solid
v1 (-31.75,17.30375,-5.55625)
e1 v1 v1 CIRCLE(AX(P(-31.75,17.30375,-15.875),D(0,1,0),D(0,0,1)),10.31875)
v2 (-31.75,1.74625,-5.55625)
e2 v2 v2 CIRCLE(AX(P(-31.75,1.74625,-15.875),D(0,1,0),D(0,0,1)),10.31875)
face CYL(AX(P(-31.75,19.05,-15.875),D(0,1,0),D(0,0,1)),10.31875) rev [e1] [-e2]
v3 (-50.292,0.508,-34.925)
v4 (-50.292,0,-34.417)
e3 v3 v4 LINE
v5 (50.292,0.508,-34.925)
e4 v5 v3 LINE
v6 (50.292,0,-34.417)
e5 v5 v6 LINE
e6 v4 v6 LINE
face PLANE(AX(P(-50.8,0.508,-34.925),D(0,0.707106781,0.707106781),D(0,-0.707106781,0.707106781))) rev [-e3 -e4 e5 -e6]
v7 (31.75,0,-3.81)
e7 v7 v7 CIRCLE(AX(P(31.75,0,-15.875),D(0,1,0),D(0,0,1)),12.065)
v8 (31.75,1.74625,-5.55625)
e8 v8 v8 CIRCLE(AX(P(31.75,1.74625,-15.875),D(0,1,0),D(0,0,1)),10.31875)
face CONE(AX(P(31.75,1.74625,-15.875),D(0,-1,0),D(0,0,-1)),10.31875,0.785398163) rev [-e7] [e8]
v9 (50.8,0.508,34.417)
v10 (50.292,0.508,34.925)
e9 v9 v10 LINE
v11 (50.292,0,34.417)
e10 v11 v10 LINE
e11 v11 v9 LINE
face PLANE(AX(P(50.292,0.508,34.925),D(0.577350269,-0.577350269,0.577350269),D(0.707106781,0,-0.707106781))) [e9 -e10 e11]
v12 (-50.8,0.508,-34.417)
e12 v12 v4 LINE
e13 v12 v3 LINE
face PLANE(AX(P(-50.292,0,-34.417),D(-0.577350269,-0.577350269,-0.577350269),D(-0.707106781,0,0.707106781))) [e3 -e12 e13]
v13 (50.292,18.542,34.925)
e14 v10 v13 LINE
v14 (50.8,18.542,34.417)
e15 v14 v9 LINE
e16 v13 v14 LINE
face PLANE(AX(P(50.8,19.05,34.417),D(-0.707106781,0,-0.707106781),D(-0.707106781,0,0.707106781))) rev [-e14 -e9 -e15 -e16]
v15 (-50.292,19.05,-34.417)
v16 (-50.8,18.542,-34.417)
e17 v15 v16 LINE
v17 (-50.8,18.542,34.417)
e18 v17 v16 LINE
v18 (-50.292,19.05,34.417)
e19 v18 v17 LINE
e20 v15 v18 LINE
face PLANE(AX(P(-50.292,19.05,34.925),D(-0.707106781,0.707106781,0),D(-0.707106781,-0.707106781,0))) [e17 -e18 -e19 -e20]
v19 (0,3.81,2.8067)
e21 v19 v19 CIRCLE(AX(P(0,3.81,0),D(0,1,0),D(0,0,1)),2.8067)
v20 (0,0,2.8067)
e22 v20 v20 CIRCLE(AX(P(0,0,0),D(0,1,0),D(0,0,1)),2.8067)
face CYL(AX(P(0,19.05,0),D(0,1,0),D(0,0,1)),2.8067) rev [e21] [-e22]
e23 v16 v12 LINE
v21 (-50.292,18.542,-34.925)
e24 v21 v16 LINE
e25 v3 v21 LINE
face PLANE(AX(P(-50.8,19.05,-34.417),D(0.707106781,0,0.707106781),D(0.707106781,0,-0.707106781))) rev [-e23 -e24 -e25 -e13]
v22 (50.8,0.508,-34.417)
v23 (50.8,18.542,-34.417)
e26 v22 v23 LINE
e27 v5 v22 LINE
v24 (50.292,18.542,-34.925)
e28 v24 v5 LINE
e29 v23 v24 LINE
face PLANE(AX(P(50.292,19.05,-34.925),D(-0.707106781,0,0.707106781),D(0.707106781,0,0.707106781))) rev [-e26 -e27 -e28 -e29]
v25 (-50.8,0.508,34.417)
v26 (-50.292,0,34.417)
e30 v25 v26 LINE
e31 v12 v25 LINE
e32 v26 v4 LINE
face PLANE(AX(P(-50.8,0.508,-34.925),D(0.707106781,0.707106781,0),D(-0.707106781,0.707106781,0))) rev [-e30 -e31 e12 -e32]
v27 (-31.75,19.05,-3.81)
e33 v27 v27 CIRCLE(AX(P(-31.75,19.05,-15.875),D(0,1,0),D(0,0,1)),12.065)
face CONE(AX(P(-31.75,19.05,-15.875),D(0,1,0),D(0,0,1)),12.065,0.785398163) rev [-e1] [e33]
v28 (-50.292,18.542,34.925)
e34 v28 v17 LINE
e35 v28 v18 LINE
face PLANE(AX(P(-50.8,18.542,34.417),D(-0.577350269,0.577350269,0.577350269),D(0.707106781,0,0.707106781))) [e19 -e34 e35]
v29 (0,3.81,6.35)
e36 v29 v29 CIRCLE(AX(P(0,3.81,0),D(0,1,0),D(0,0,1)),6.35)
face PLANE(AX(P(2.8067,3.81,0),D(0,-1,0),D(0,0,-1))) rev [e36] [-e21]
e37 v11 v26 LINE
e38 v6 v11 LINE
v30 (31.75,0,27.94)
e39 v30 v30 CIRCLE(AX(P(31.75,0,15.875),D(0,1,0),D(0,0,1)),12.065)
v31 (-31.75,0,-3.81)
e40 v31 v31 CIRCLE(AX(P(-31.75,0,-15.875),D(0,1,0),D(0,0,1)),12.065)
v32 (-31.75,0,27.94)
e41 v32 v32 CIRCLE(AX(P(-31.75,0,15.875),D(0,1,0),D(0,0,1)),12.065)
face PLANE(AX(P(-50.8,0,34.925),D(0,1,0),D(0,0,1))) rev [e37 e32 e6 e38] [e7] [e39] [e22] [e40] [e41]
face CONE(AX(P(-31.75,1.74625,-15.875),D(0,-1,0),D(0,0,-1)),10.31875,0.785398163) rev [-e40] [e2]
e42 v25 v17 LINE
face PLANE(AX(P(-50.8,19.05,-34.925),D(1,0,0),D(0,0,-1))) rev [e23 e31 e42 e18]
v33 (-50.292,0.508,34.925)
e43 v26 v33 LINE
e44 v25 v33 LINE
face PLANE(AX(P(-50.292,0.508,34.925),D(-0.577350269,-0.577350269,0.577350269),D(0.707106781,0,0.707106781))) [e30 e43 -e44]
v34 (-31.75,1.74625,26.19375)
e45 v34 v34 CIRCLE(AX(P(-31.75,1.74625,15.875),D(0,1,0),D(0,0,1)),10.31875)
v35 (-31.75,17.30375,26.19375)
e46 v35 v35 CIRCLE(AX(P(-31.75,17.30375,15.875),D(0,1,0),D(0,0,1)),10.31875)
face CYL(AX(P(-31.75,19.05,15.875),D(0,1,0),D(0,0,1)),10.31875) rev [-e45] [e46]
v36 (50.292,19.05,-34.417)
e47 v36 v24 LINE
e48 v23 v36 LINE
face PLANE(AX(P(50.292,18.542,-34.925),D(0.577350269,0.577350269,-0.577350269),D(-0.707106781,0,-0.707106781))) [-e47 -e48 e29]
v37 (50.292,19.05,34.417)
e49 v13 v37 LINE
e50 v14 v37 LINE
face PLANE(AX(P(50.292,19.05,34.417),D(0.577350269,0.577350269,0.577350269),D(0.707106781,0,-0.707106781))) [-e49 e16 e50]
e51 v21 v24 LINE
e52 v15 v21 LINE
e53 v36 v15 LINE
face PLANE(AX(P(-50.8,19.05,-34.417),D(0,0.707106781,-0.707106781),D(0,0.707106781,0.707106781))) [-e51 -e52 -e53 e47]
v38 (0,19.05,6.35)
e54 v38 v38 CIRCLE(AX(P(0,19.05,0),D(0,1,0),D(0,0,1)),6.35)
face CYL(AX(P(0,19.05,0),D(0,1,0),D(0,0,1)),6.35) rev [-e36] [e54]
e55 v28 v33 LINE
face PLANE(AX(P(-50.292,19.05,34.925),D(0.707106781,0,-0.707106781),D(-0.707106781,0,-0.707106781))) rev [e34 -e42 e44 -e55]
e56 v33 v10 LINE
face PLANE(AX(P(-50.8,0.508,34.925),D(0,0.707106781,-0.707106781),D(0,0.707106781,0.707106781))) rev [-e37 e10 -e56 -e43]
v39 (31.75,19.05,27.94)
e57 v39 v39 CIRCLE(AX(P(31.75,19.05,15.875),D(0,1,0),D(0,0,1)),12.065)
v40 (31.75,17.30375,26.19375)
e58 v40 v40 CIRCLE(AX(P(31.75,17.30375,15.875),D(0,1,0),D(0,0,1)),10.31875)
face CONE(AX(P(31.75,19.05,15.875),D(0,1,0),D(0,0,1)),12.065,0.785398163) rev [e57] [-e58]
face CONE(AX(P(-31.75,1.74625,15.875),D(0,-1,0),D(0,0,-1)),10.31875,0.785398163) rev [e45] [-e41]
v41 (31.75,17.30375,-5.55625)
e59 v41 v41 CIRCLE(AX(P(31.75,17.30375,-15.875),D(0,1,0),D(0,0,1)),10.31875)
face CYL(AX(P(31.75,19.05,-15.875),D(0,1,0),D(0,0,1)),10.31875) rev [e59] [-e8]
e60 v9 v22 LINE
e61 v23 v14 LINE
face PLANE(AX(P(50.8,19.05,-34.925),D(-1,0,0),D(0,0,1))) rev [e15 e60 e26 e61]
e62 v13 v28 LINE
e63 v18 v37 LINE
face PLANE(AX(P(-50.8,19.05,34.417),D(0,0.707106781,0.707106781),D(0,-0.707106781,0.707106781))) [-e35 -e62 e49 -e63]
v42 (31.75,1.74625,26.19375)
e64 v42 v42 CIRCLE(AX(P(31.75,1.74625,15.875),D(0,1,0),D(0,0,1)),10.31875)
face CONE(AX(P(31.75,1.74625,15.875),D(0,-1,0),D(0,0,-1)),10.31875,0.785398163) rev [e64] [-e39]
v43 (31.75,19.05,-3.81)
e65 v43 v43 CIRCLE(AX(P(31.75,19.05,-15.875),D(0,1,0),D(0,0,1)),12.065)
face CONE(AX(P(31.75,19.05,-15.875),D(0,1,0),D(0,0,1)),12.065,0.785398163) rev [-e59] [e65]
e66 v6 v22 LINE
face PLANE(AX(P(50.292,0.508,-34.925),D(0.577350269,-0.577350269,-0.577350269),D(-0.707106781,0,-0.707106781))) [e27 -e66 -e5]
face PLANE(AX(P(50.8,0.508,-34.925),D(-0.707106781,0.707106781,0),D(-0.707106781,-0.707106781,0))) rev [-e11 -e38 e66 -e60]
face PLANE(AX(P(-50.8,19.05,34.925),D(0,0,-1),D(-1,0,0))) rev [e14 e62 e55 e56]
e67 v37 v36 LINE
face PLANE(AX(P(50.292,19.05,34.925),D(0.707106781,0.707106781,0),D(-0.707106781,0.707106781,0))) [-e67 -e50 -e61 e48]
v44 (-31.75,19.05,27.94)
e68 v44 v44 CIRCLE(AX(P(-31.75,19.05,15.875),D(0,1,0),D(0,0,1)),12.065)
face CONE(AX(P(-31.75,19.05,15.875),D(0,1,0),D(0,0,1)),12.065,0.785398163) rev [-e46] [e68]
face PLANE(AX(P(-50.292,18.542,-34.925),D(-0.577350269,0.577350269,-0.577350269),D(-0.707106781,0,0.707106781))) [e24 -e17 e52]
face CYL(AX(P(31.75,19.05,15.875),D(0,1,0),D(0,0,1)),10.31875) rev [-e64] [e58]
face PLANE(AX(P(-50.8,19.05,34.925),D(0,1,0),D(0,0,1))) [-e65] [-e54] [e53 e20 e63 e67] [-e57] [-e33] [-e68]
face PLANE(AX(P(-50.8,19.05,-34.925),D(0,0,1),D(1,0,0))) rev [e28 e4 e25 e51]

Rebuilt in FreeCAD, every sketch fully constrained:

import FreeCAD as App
import Part
import Sketcher

V = App.Vector
Q = App.Units.Quantity


def edges_at(feature, points):
    """Names of the edges that pass closest to the given points."""
    edges = feature.Shape.Edges
    near = lambda p: min(range(len(edges)), key=lambda i: edges[i].distToShape(Part.Vertex(*p))[0])
    return sorted({f"Edge{near(p) + 1}" for p in points})

doc = App.newDocument("Part")
body = doc.addObject("PartDesign::Body", "Body")

# Sketch on XZ plane
sketch1 = body.newObject("Sketcher::SketchObject", "Sketch")
sketch1.AttachmentSupport = (doc.getObject("XZ_Plane"), [""])
sketch1.MapMode = "FlatFace"
sketch1.addGeometry(Part.LineSegment(V(-51, -35, 0), V(-51, 35, 0)), False)
sketch1.addGeometry(Part.LineSegment(V(-51, 35, 0), V(51, 35, 0)), False)
sketch1.addGeometry(Part.LineSegment(V(51, 35, 0), V(51, -35, 0)), False)
sketch1.addGeometry(Part.LineSegment(V(51, -35, 0), V(-51, -35, 0)), False)
sketch1.addConstraint(Sketcher.Constraint("Coincident", 0, 2, 1, 1))
sketch1.addConstraint(Sketcher.Constraint("Coincident", 1, 2, 2, 1))
sketch1.addConstraint(Sketcher.Constraint("Coincident", 2, 2, 3, 1))
sketch1.addConstraint(Sketcher.Constraint("Coincident", 3, 2, 0, 1))
sketch1.addConstraint(Sketcher.Constraint("Vertical", 0))
sketch1.addConstraint(Sketcher.Constraint("Horizontal", 1))
sketch1.addConstraint(Sketcher.Constraint("Vertical", 2))
sketch1.addConstraint(Sketcher.Constraint("Horizontal", 3))
sketch1.addConstraint(Sketcher.Constraint("Symmetric", 0, 2, 2, 2, -1, 1))
sketch1.addConstraint(Sketcher.Constraint("DistanceX", 1, 1, 1, 2, Q("4 in")))
sketch1.addConstraint(Sketcher.Constraint("DistanceY", 0, 1, 0, 2, Q("2.75 in")))
pad1 = body.newObject("PartDesign::Pad", "Pad")
pad1.Profile = sketch1
pad1.Length = Q("0.75 in")
pad1.Reversed = True

# Sketch on YZ plane
sketch2 = body.newObject("Sketcher::SketchObject", "Sketch001")
sketch2.AttachmentSupport = (doc.getObject("YZ_Plane"), [""])
sketch2.MapMode = "FlatFace"
sketch2.AttachmentOffset = App.Placement(V(0, 0, 1.25 * 25.4), App.Rotation())
sketch2.addGeometry(Part.LineSegment(V(0, 15.9, 0), V(19.1, 15.9, 0)), False)
sketch2.addGeometry(Part.LineSegment(V(19.1, 15.9, 0), V(19.1, 27.9, 0)), False)
sketch2.addGeometry(Part.LineSegment(V(19.1, 27.9, 0), V(17.3, 26.2, 0)), False)
sketch2.addGeometry(Part.LineSegment(V(17.3, 26.2, 0), V(1.7, 26.2, 0)), False)
sketch2.addGeometry(Part.LineSegment(V(1.7, 26.2, 0), V(0, 27.9, 0)), False)
sketch2.addGeometry(Part.LineSegment(V(0, 27.9, 0), V(0, 15.9, 0)), False)
sketch2.addGeometry(Part.LineSegment(V(19.1, 15.9, 0), V(0, 15.9, 0)), True)  # axis
sketch2.addConstraint(Sketcher.Constraint("Coincident", 0, 2, 1, 1))
sketch2.addConstraint(Sketcher.Constraint("Coincident", 1, 2, 2, 1))
sketch2.addConstraint(Sketcher.Constraint("Coincident", 2, 2, 3, 1))
sketch2.addConstraint(Sketcher.Constraint("Coincident", 3, 2, 4, 1))
sketch2.addConstraint(Sketcher.Constraint("Coincident", 4, 2, 5, 1))
sketch2.addConstraint(Sketcher.Constraint("Coincident", 5, 2, 0, 1))
sketch2.addConstraint(Sketcher.Constraint("Horizontal", 0))
sketch2.addConstraint(Sketcher.Constraint("Vertical", 1))
sketch2.addConstraint(Sketcher.Constraint("Horizontal", 3))
sketch2.addConstraint(Sketcher.Constraint("Vertical", 5))
sketch2.addConstraint(Sketcher.Constraint("Horizontal", 6))
sketch2.addConstraint(Sketcher.Constraint("Coincident", 6, 1, 0, 2))
sketch2.addConstraint(Sketcher.Constraint("PointOnObject", 4, 2, -2))
sketch2.addConstraint(Sketcher.Constraint("PointOnObject", 6, 2, -2))
sketch2.addConstraint(Sketcher.Constraint("Perpendicular", 2, 4))
sketch2.addConstraint(Sketcher.Constraint("Horizontal", 1, 2, 4, 2))
sketch2.addConstraint(Sketcher.Constraint("Equal", 2, 4))
sketch2.addConstraint(Sketcher.Constraint("DistanceX", 0, 1, 0, 2, Q("0.75 in")))
sketch2.addConstraint(Sketcher.Constraint("DistanceY", -1, 1, 1, 2, Q("1.1 in")))
sketch2.addConstraint(Sketcher.Constraint("DistanceY", 1, 1, 1, 2, Q("0.475 in")))
sketch2.addConstraint(Sketcher.Constraint("DistanceX", 3, 2, 3, 1, Q("0.6125 in")))
groove = body.newObject("PartDesign::Groove", "Groove")
groove.Profile = sketch2
groove.ReferenceAxis = (sketch2, ["Axis0"])
groove.Angle = 360
doc.recompute()

linearpattern = body.newObject("PartDesign::LinearPattern", "LinearPattern")
linearpattern.Originals = [groove]
linearpattern.Direction = (doc.getObject("Z_Axis"), [""])
linearpattern.Mode = "offset"
linearpattern.Offset = Q("1.25 in")
linearpattern.Occurrences = 2
linearpattern.Reversed = True
body.Tip = linearpattern
doc.recompute()

datumline = body.newObject("PartDesign::Line", "DatumLine")
datumline.Placement = App.Placement(V(0, 0, 0), App.Rotation(V(0, 0, 1), V(-0.894427191, 0, -0.447213595)))
linearpattern2 = body.newObject("PartDesign::LinearPattern", "LinearPattern001")
linearpattern2.Originals = [groove]
linearpattern2.Direction = (datumline, [""])
linearpattern2.Mode = "offset"
linearpattern2.Offset = 70.995158
linearpattern2.Occurrences = 2
body.Tip = linearpattern2
doc.recompute()

linearpattern3 = body.newObject("PartDesign::LinearPattern", "LinearPattern002")
linearpattern3.Originals = [groove]
linearpattern3.Direction = (doc.getObject("X_Axis"), [""])
linearpattern3.Mode = "offset"
linearpattern3.Offset = Q("2.5 in")
linearpattern3.Occurrences = 2
linearpattern3.Reversed = True
body.Tip = linearpattern3

# Sketch on XZ plane
sketch3 = body.newObject("Sketcher::SketchObject", "Sketch002")
sketch3.AttachmentSupport = (doc.getObject("XZ_Plane"), [""])
sketch3.MapMode = "FlatFace"
sketch3.AttachmentOffset = App.Placement(V(0, 0, -0.75 * 25.4), App.Rotation())
sketch3.addGeometry(Part.Circle(V(0, 0, 0), V(0, 0, 1), 2.8), False)
sketch3.addConstraint(Sketcher.Constraint("Coincident", 0, 3, -1, 1))
sketch3.addConstraint(Sketcher.Constraint("Diameter", 0, Q("0.221 in")))
doc.recompute()
hole = body.newObject("PartDesign::Hole", "Hole")
hole.Profile = sketch3
hole.ThreadType = "None"
hole.Diameter = Q("0.221 in")
hole.DepthType = "ThroughAll"
hole.HoleCutType = "Counterbore"
hole.HoleCutDiameter = Q("0.5 in")
hole.HoleCutDepth = Q("0.6 in")
hole.Reversed = True
doc.recompute()

chamfer = body.newObject("PartDesign::Chamfer", "Chamfer")
chamfer.Base = (hole, edges_at(hole, [
    (50.8, 19.05, 0),
    (0, 19.05, -34.925),
    (-50.8, 19.05, 0),
    (0, 0, -34.925),
    (50.8, 0, 0),
    (0, 0, 34.925),
    (-50.8, 0, 0),
    (0, 19.05, 34.925),
    (-50.8, 9.525, -34.925),
    (50.8, 9.525, -34.925),
    (50.8, 9.525, 34.925),
    (-50.8, 9.525, 34.925),
]))
chamfer.Size = Q("0.02 in")

doc.recompute()
